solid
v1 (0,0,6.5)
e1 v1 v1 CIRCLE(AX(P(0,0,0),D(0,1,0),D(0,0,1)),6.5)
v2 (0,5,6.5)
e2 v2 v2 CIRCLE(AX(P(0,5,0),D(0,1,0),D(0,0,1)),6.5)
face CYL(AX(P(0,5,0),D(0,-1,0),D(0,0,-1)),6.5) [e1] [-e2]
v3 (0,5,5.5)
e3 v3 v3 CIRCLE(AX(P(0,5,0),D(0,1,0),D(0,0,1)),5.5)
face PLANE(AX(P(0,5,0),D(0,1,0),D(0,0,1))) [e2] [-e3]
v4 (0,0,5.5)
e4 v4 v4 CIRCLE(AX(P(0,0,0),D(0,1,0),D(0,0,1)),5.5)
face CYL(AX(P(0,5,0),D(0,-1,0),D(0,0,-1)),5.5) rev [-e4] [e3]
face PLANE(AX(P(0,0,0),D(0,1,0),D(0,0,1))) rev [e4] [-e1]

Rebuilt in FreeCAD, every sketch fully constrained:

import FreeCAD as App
import Part
import Sketcher

V = App.Vector
Q = App.Units.Quantity

doc = App.newDocument("Part")
body = doc.addObject("PartDesign::Body", "Body")

sketch1 = body.newObject("Sketcher::SketchObject", "Sketch")
sketch1.AttachmentSupport = (doc.getObject("XZ_Plane"), [""])
sketch1.MapMode = "FlatFace"
sketch1.addGeometry([
    Part.Circle(V(0, 0, 0), V(0, 0, 1), 6),
    Part.Circle(V(0, 0, 0), V(0, 0, 1), 6),
], False)
sketch1.addConstraint([
    Sketcher.Constraint("Coincident", 0, 3, -1, 1),
    Sketcher.Constraint("Coincident", 1, 3, -1, 1),
    Sketcher.Constraint("Diameter", 0, Q("13 mm")),
    Sketcher.Constraint("Diameter", 1, Q("11 mm")),
])
pad1 = body.newObject("PartDesign::Pad", "Pad")
pad1.Profile = sketch1
pad1.Length = 5
pad1.Reversed = True

doc.recompute()
